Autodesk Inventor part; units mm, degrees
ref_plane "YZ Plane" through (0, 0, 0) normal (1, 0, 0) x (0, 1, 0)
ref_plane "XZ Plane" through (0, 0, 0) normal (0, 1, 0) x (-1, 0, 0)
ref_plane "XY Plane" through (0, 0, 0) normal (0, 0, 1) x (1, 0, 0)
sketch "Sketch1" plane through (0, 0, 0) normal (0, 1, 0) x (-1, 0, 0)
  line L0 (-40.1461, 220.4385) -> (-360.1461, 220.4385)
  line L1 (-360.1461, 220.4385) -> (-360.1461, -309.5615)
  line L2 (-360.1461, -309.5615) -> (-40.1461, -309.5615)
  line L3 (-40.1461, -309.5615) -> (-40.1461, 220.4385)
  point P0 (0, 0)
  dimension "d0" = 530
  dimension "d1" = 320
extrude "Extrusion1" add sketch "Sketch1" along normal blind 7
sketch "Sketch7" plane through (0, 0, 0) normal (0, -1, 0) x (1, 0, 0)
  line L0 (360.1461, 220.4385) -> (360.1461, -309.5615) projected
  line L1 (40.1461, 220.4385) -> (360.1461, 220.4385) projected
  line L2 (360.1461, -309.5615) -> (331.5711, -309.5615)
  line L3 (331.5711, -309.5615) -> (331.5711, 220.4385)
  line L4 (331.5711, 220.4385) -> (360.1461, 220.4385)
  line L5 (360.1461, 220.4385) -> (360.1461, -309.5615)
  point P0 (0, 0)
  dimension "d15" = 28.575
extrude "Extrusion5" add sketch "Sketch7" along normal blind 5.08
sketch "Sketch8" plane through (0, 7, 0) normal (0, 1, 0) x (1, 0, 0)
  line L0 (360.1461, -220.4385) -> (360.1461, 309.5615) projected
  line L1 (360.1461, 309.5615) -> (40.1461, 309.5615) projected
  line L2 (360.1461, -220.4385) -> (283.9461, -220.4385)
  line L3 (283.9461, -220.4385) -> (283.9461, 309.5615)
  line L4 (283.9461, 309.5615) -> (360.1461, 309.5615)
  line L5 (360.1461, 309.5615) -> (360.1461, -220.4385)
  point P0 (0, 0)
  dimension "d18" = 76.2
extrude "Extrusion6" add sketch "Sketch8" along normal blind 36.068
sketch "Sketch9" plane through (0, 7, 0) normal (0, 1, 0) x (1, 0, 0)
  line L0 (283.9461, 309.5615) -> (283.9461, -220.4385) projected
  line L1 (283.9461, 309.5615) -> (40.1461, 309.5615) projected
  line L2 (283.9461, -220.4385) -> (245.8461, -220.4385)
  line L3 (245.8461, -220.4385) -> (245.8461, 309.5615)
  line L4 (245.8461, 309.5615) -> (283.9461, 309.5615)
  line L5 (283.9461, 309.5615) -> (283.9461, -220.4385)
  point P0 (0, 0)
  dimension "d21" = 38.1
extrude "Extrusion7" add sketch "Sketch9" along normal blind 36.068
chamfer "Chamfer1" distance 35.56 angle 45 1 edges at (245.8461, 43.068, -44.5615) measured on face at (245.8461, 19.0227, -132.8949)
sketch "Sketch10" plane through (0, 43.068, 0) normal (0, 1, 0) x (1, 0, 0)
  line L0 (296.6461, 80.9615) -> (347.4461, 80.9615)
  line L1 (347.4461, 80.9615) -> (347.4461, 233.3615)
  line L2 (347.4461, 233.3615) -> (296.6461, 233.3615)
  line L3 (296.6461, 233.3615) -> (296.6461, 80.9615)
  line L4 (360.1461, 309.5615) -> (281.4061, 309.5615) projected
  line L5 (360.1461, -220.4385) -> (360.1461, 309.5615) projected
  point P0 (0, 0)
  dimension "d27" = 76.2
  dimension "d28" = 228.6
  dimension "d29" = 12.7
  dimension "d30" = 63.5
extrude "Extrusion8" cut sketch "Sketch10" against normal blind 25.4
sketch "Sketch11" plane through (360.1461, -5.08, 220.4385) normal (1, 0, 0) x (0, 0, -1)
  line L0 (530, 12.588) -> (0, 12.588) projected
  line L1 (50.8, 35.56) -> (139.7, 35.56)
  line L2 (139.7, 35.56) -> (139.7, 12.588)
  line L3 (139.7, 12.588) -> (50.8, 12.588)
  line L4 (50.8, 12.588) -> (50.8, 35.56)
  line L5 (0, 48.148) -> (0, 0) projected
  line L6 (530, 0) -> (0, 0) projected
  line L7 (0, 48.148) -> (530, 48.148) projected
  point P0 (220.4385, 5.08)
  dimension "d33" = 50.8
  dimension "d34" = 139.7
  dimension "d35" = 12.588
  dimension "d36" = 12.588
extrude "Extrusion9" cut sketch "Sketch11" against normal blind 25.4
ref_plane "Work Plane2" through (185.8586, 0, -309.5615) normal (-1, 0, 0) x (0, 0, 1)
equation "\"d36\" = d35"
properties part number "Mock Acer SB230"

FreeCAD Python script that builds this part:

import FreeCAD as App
import Part
import Sketcher
Q = App.Units.Quantity


def edges_at(feature, points):
    """Names of the edges that pass closest to the given points."""
    edges = feature.Shape.Edges
    near = lambda p: min(range(len(edges)), key=lambda i: edges[i].distToShape(Part.Vertex(*p))[0])
    return sorted({f"Edge{near(p) + 1}" for p in points})


def add_polygon(sketch, points):
    """Adds a closed chain of lines whose ends are joined by coincident constraints."""
    first, n = sketch.GeometryCount, len(points)
    for a, b in zip(points, points[1:] + points[:1]):
        sketch.addGeometry(Part.LineSegment(App.Vector(*a, 0), App.Vector(*b, 0)), False)
    for i in range(n):
        sketch.addConstraint(Sketcher.Constraint("Coincident", first + i, 2, first + (i + 1) % n, 1))

doc = App.newDocument("Part")
body = doc.addObject("PartDesign::Body", "Body")

sketch1 = doc.addObject("Sketcher::SketchObject", "Sketch")
body.addObject(sketch1)
sketch1.AttachmentSupport = (doc.XZ_Plane, [""])
sketch1.MapMode = "FlatFace"
add_polygon(sketch1, [(40.1461, -309.5615), (40.1461, 220.4385), (360.1461, 220.4385), (360.1461, -309.5615)])
sketch1.addConstraint([
    Sketcher.Constraint("Vertical", 0),
    Sketcher.Constraint("Horizontal", 1),
    Sketcher.Constraint("Vertical", 2),
    Sketcher.Constraint("Horizontal", 3),
    Sketcher.Constraint("DistanceX", 1, 1, 1, 2, Q("320 mm")),
    Sketcher.Constraint("DistanceY", 0, 1, 0, 2, Q("530 mm")),
    Sketcher.Constraint("DistanceX", -1, 1, 0, 2, Q("40.146 mm")),
    Sketcher.Constraint("DistanceY", -1, 1, 0, 2, Q("220.4385 mm")),
])
pad1 = doc.addObject("PartDesign::Pad", "Pad")
body.addObject(pad1)
pad1.Profile = sketch1
pad1.Length = Q("0.2755906 in")
pad1.Reversed = True

sketch2 = doc.addObject("Sketcher::SketchObject", "Sketch001")
body.addObject(sketch2)
sketch2.AttachmentSupport = (doc.XZ_Plane, [""])
sketch2.MapMode = "FlatFace"
add_polygon(sketch2, [(360.1461, -309.5615), (360.1461, 220.4385), (331.5711, 220.4385), (331.5711, -309.5615)])
sketch2.addConstraint([
    Sketcher.Constraint("Vertical", 0),
    Sketcher.Constraint("Horizontal", 1),
    Sketcher.Constraint("Vertical", 2),
    Sketcher.Constraint("Horizontal", 3),
    Sketcher.Constraint("DistanceX", 1, 2, 1, 1, Q("1.125 in")),
    Sketcher.Constraint("DistanceY", 0, 1, 0, 2, Q("530 mm")),
    Sketcher.Constraint("DistanceX", -1, 1, 0, 2, Q("360.146 mm")),
    Sketcher.Constraint("DistanceY", -1, 1, 0, 2, Q("220.4385 mm")),
])
pad2 = doc.addObject("PartDesign::Pad", "Pad001")
body.addObject(pad2)
pad2.Profile = sketch2
pad2.Length = Q("0.2 in")

sketch3 = doc.addObject("Sketcher::SketchObject", "Sketch002")
body.addObject(sketch3)
sketch3.AttachmentSupport = (doc.XZ_Plane, [""])
sketch3.MapMode = "FlatFace"
sketch3.AttachmentOffset = App.Placement(App.Vector(0, 0, -0.2755906 * 25.4), App.Rotation())
add_polygon(sketch3, [(283.9461, 220.4385), (360.1461, 220.4385), (360.1461, -309.5615), (283.9461, -309.5615)])
sketch3.addConstraint([
    Sketcher.Constraint("Horizontal", 0),
    Sketcher.Constraint("Vertical", 1),
    Sketcher.Constraint("Horizontal", 2),
    Sketcher.Constraint("Vertical", 3),
    Sketcher.Constraint("DistanceX", 0, 1, 0, 2, Q("3 in")),
    Sketcher.Constraint("DistanceY", 1, 2, 1, 1, Q("530 mm")),
    Sketcher.Constraint("DistanceX", -1, 1, 0, 2, Q("360.146 mm")),
    Sketcher.Constraint("DistanceY", -1, 1, 0, 2, Q("220.4385 mm")),
])
pad3 = doc.addObject("PartDesign::Pad", "Pad002")
body.addObject(pad3)
pad3.Profile = sketch3
pad3.Length = Q("1.42 in")
pad3.Reversed = True

sketch4 = doc.addObject("Sketcher::SketchObject", "Sketch003")
body.addObject(sketch4)
sketch4.AttachmentSupport = (doc.XZ_Plane, [""])
sketch4.MapMode = "FlatFace"
sketch4.AttachmentOffset = App.Placement(App.Vector(0, 0, -0.2755906 * 25.4), App.Rotation())
add_polygon(sketch4, [(283.9461, 220.4385), (283.9461, -309.5615), (245.8461, -309.5615), (245.8461, 220.4385)])
sketch4.addConstraint([
    Sketcher.Constraint("Vertical", 0),
    Sketcher.Constraint("Horizontal", 1),
    Sketcher.Constraint("Vertical", 2),
    Sketcher.Constraint("Horizontal", 3),
    Sketcher.Constraint("DistanceX", 1, 2, 1, 1, Q("1.5 in")),
    Sketcher.Constraint("DistanceY", 0, 2, 0, 1, Q("530 mm")),
    Sketcher.Constraint("DistanceX", -1, 1, 0, 2, Q("283.946 mm")),
    Sketcher.Constraint("DistanceY", 0, 2, -1, 1, Q("309.5615 mm")),
])
pad4 = doc.addObject("PartDesign::Pad", "Pad003")
body.addObject(pad4)
pad4.Profile = sketch4
pad4.Length = Q("1.42 in")
pad4.Reversed = True
doc.recompute()

chamfer = doc.addObject("PartDesign::Chamfer", "Chamfer")
body.addObject(chamfer)
chamfer.Base = (pad4, edges_at(pad4, [(245.846, 43.068, -44.562)]))
chamfer.Size = Q("1.4 in")

sketch5 = doc.addObject("Sketcher::SketchObject", "Sketch004")
body.addObject(sketch5)
sketch5.AttachmentSupport = (doc.XZ_Plane, [""])
sketch5.MapMode = "FlatFace"
sketch5.AttachmentOffset = App.Placement(App.Vector(0, 0, -1.6955906 * 25.4), App.Rotation())
add_polygon(sketch5, [(296.6461, -233.3615), (296.6461, -80.9615), (347.4461, -80.9615), (347.4461, -233.3615)])
sketch5.addConstraint([
    Sketcher.Constraint("Vertical", 0),
    Sketcher.Constraint("Horizontal", 1),
    Sketcher.Constraint("Vertical", 2),
    Sketcher.Constraint("Horizontal", 3),
    Sketcher.Constraint("DistanceX", 1, 1, 1, 2, Q("2 in")),
    Sketcher.Constraint("DistanceY", 0, 1, 0, 2, Q("6 in")),
    Sketcher.Constraint("DistanceX", -1, 1, 0, 2, Q("296.646 mm")),
    Sketcher.Constraint("DistanceY", 0, 2, -1, 1, Q("80.9615 mm")),
])
pocket1 = doc.addObject("PartDesign::Pocket", "Pocket")
body.addObject(pocket1)
pocket1.Profile = sketch5
pocket1.Length = Q("1 in")
pocket1.Reversed = True

sketch6 = doc.addObject("Sketcher::SketchObject", "Sketch005")
body.addObject(sketch6)
sketch6.AttachmentSupport = (doc.YZ_Plane, [""])
sketch6.MapMode = "FlatFace"
sketch6.AttachmentOffset = App.Placement(App.Vector(0, 0, 360.1461), App.Rotation())
add_polygon(sketch6, [(7.508, 169.6385), (7.508, 80.7385), (30.48, 80.7385), (30.48, 169.6385)])
sketch6.addConstraint([
    Sketcher.Constraint("Vertical", 0),
    Sketcher.Constraint("Horizontal", 1),
    Sketcher.Constraint("Vertical", 2),
    Sketcher.Constraint("Horizontal", 3),
    Sketcher.Constraint("DistanceY", 0, 2, 0, 1, Q("3.5 in")),
    Sketcher.Constraint("DistanceX", -1, 1, 1, 2, Q("1.2 in")),
    Sketcher.Constraint("DistanceX", 1, 1, 1, 2, Q("0.9044 in")),
    Sketcher.Constraint("DistanceY", -1, 1, 0, 2, Q("80.7385 mm")),
])
pocket2 = doc.addObject("PartDesign::Pocket", "Pocket001")
body.addObject(pocket2)
pocket2.Profile = sketch6
pocket2.Length = Q("1 in")

doc.recompute()
